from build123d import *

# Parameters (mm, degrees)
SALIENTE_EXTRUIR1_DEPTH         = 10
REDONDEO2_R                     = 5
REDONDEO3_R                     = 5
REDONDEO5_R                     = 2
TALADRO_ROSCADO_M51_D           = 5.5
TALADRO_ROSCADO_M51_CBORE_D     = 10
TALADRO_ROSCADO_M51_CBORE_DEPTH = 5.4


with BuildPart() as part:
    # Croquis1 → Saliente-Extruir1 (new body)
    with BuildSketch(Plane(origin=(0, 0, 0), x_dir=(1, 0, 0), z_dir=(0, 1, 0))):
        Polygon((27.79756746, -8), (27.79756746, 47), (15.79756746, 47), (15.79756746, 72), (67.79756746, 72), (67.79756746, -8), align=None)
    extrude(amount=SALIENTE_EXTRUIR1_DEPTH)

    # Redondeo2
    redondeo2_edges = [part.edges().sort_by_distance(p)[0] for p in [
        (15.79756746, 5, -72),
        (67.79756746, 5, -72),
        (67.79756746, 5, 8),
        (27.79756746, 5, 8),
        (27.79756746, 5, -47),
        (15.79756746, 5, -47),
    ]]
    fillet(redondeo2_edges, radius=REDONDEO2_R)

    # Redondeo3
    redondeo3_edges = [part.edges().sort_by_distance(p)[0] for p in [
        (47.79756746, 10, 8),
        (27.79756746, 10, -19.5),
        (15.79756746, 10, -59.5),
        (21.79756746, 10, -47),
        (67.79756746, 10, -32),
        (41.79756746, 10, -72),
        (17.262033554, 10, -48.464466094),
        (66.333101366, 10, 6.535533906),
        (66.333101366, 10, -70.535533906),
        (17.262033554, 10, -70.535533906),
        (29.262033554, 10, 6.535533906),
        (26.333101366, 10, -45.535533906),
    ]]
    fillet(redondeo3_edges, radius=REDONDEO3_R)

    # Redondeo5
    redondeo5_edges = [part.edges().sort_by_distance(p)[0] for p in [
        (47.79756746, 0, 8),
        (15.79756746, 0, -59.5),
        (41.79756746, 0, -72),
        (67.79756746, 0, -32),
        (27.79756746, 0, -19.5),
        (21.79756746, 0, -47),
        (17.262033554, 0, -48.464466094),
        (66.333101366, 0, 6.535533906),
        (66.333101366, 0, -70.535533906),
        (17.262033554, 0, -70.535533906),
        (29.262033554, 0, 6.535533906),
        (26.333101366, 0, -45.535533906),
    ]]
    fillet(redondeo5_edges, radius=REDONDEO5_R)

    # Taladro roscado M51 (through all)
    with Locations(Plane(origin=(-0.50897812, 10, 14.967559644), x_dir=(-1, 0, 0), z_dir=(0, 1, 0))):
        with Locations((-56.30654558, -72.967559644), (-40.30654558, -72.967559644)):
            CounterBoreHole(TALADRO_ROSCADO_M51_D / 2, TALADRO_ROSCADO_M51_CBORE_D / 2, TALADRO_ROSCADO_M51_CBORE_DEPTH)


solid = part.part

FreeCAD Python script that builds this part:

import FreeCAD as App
import Part
import Sketcher

V = App.Vector
Q = App.Units.Quantity


def edges_at(feature, points):
    """Names of the edges that pass closest to the given points."""
    edges = feature.Shape.Edges
    near = lambda p: min(range(len(edges)), key=lambda i: edges[i].distToShape(Part.Vertex(*p))[0])
    return sorted({f"Edge{near(p) + 1}" for p in points})

doc = App.newDocument("Part")
body = doc.addObject("PartDesign::Body", "Body")

sketch1 = body.newObject("Sketcher::SketchObject", "Sketch")
sketch1.AttachmentSupport = (doc.getObject("XZ_Plane"), [""])
sketch1.MapMode = "FlatFace"
sketch1.addGeometry([
    Part.LineSegment(V(28, -47, 0), V(28, 8, 0)),
    Part.LineSegment(V(28, 8, 0), V(68, 8, 0)),
    Part.LineSegment(V(68, 8, 0), V(68, -72, 0)),
    Part.LineSegment(V(68, -72, 0), V(16, -72, 0)),
    Part.LineSegment(V(16, -72, 0), V(16, -47, 0)),
    Part.LineSegment(V(16, -47, 0), V(28, -47, 0)),
], False)
sketch1.addConstraint([
    Sketcher.Constraint("Coincident", 0, 2, 1, 1),
    Sketcher.Constraint("Coincident", 1, 2, 2, 1),
    Sketcher.Constraint("Coincident", 2, 2, 3, 1),
    Sketcher.Constraint("Coincident", 3, 2, 4, 1),
    Sketcher.Constraint("Coincident", 4, 2, 5, 1),
    Sketcher.Constraint("Coincident", 5, 2, 0, 1),
    Sketcher.Constraint("Vertical", 0),
    Sketcher.Constraint("Horizontal", 1),
    Sketcher.Constraint("Vertical", 2),
    Sketcher.Constraint("Horizontal", 3),
    Sketcher.Constraint("Vertical", 4),
    Sketcher.Constraint("Horizontal", 5),
    Sketcher.Constraint("DistanceX", 1, 1, 1, 2, Q("40 mm")),
    Sketcher.Constraint("DistanceX", 3, 2, 3, 1, Q("52 mm")),
    Sketcher.Constraint("DistanceY", 0, 1, 0, 2, Q("55 mm")),
    Sketcher.Constraint("DistanceY", 2, 2, 2, 1, Q("80 mm")),
    Sketcher.Constraint("DistanceY", -1, 1, 0, 2, Q("8 mm")),
    Sketcher.Constraint("DistanceX", -1, 1, 0, 2, Q("27.797567 mm")),
])
pad1 = body.newObject("PartDesign::Pad", "Pad")
pad1.Profile = sketch1
pad1.Length = 10
pad1.Reversed = True
doc.recompute()

fillet = body.newObject("PartDesign::Fillet", "Fillet")
fillet.Base = (pad1, edges_at(pad1, [
    (15.798, 5, -72),
    (67.798, 5, -72),
    (67.798, 5, 8),
    (27.798, 5, 8),
    (27.798, 5, -47),
    (15.798, 5, -47),
]))
fillet.Radius = 5
doc.recompute()

fillet2 = body.newObject("PartDesign::Fillet", "Fillet001")
fillet2.Base = (fillet, edges_at(fillet, [
    (47.798, 10, 8),
    (27.798, 10, -19.5),
    (15.798, 10, -59.5),
    (21.798, 10, -47),
    (67.798, 10, -32),
    (41.798, 10, -72),
    (17.262, 10, -48.464),
    (66.333, 10, 6.536),
    (66.333, 10, -70.536),
    (17.262, 10, -70.536),
    (29.262, 10, 6.536),
    (26.333, 10, -45.536),
]))
fillet2.Radius = 5
doc.recompute()

fillet3 = body.newObject("PartDesign::Fillet", "Fillet002")
fillet3.Base = (fillet2, edges_at(fillet2, [
    (47.798, 0, 8),
    (15.798, 0, -59.5),
    (41.798, 0, -72),
    (67.798, 0, -32),
    (27.798, 0, -19.5),
    (21.798, 0, -47),
    (17.262, 0, -48.464),
    (66.333, 0, 6.536),
    (66.333, 0, -70.536),
    (17.262, 0, -70.536),
    (29.262, 0, 6.536),
    (26.333, 0, -45.536),
]))
fillet3.Radius = 2

sketch2 = body.newObject("Sketcher::SketchObject", "Sketch001")
sketch2.AttachmentSupport = (doc.getObject("XZ_Plane"), [""])
sketch2.MapMode = "FlatFace"
sketch2.AttachmentOffset = App.Placement(V(0, 0, -10), App.Rotation())
sketch2.addGeometry([
    Part.Circle(V(55.8, -58, 0), V(0, 0, 1), 2.8),
    Part.Circle(V(39.8, -58, 0), V(0, 0, 1), 2.8),
], False)
sketch2.addConstraint([
    Sketcher.Constraint("Equal", 0, 1),
    Sketcher.Constraint("Horizontal", 0, 3, 1, 3),
    Sketcher.Constraint("Diameter", 0, Q("5.5 mm")),
    Sketcher.Constraint("DistanceY", 0, 3, -1, 1, Q("58 mm")),
    Sketcher.Constraint("DistanceX", 1, 3, 0, 3, Q("16 mm")),
    Sketcher.Constraint("DistanceX", -1, 1, 0, 3, Q("55.797567 mm")),
])
doc.recompute()
hole = body.newObject("PartDesign::Hole", "Hole")
hole.Profile = sketch2
hole.ThreadType = "None"
hole.Diameter = 5.5
hole.DepthType = "ThroughAll"
hole.HoleCutType = "Counterbore"
hole.HoleCutDiameter = 10
hole.HoleCutDepth = 5.4
hole.Reversed = True

doc.recompute()
